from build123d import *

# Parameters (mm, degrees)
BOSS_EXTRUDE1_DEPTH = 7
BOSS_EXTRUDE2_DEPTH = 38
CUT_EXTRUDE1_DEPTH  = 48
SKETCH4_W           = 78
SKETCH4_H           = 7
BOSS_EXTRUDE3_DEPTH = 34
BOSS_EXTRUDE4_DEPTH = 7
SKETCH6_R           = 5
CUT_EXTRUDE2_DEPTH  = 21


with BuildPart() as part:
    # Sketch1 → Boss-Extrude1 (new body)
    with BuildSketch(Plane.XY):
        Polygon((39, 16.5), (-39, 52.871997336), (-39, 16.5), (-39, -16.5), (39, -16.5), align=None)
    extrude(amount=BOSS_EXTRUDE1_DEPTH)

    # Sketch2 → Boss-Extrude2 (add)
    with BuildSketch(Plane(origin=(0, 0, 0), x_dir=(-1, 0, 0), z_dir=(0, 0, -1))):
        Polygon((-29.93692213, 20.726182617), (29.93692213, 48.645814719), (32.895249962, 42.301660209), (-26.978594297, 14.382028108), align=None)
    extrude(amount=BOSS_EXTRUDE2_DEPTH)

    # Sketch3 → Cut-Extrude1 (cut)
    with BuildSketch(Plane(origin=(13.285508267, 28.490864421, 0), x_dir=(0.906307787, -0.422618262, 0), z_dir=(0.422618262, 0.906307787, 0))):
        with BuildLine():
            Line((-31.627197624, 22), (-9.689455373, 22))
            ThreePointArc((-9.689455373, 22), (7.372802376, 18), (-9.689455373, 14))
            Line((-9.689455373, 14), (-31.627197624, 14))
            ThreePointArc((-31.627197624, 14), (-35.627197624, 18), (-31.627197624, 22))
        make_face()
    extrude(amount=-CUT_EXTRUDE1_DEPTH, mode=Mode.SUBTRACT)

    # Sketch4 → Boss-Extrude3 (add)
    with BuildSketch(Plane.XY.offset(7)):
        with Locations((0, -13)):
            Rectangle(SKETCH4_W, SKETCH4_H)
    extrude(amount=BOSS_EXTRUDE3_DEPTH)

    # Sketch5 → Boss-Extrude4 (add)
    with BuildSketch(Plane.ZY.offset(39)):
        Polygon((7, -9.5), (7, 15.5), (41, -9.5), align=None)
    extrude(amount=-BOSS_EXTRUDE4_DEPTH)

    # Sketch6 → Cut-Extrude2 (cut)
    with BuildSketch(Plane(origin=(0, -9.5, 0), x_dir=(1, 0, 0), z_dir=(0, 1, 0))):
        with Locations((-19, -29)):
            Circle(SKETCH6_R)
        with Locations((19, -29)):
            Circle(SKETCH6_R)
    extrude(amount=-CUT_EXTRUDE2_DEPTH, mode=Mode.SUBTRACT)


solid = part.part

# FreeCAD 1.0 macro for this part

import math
import FreeCAD as App
import Part
import Sketcher
Q = App.Units.Quantity


def add_polygon(sketch, points):
    """Adds a closed chain of lines whose ends are joined by coincident constraints."""
    first, n = sketch.GeometryCount, len(points)
    for a, b in zip(points, points[1:] + points[:1]):
        sketch.addGeometry(Part.LineSegment(App.Vector(*a, 0), App.Vector(*b, 0)), False)
    for i in range(n):
        sketch.addConstraint(Sketcher.Constraint("Coincident", first + i, 2, first + (i + 1) % n, 1))

doc = App.newDocument("Part")
body = doc.addObject("PartDesign::Body", "Body")

# Sketch on XY plane
sketch1 = doc.addObject("Sketcher::SketchObject", "Sketch")
body.addObject(sketch1)
sketch1.AttachmentSupport = (doc.XY_Plane, [""])
sketch1.MapMode = "FlatFace"
add_polygon(sketch1, [(39, 16.5), (-39, 52.871997), (-39, -16.5), (39, -16.5)])  # lines 0-3
sketch1.addConstraint(Sketcher.Constraint("Vertical", 1))
sketch1.addConstraint(Sketcher.Constraint("Horizontal", 2))
sketch1.addConstraint(Sketcher.Constraint("Vertical", 3))
sketch1.addConstraint(Sketcher.Constraint("Symmetric", 1, 2, 3, 2, -1, 1))
sketch1.addConstraint(Sketcher.Constraint("DistanceX", 2, 1, 2, 2, Q("78 mm")))
sketch1.addConstraint(Sketcher.Constraint("DistanceY", 3, 1, 3, 2, Q("33 mm")))
sketch1.addConstraint(Sketcher.Constraint("Angle", 0, Q("155 deg")))
pad1 = doc.addObject("PartDesign::Pad", "Pad")
body.addObject(pad1)
pad1.Profile = sketch1
pad1.Length = 7

# Sketch on XY plane
sketch2 = doc.addObject("Sketcher::SketchObject", "Sketch001")
body.addObject(sketch2)
sketch2.AttachmentSupport = (doc.XY_Plane, [""])
sketch2.MapMode = "FlatFace"
add_polygon(sketch2, [(-29.936922, 48.645815), (29.936922, 20.726183), (26.978594, 14.382028), (-32.89525, 42.30166)])  # lines 0-3
sketch2.addConstraint(Sketcher.Constraint("Perpendicular", 0, 1))
sketch2.addConstraint(Sketcher.Constraint("Perpendicular", 1, 2))
sketch2.addConstraint(Sketcher.Constraint("Perpendicular", 2, 3))
sketch2.addConstraint(Sketcher.Constraint("Angle", 0, Q("-25 deg")))
sketch2.addConstraint(Sketcher.Constraint("Distance", 1, Q("7 mm")))
sketch2.addConstraint(Sketcher.Constraint("DistanceY", -1, 1, 1, 2, Q("14.382028 mm")))
sketch2.addConstraint(Sketcher.Constraint("DistanceX", 2, 2, -1, 1, Q("32.89525 mm")))
sketch2.addConstraint(Sketcher.Constraint("DistanceY", -1, 1, 2, 2, Q("42.30166 mm")))
pad2 = doc.addObject("PartDesign::Pad", "Pad001")
body.addObject(pad2)
pad2.Profile = sketch2
pad2.Length = 38
pad2.Reversed = True

# Sketch on an angled plane
sketch3 = doc.addObject("Sketcher::SketchObject", "Sketch002")
body.addObject(sketch3)
sketch3.Placement = App.Placement(App.Vector(13.285508, 28.490864, 0), App.Rotation(App.Vector(0.906307787, -0.422618262, 0), App.Vector(0, 0, -1), App.Vector(0.422618262, 0.906307787, 0), "ZXY"))
sketch3.addGeometry(Part.LineSegment(App.Vector(-9.689455, 22, 0), App.Vector(-31.627198, 22, 0)), False)
sketch3.addGeometry(Part.ArcOfCircle(Part.Circle(App.Vector(-31.627198, 18, 0), App.Vector(0, 0, 1), 4), math.radians(90), math.radians(270)), False)
sketch3.addGeometry(Part.LineSegment(App.Vector(-31.627198, 14, 0), App.Vector(-9.689455, 14, 0)), False)
sketch3.addGeometry(Part.ArcOfCircle(Part.Circle(App.Vector(-1.627198, 18, 0), App.Vector(0, 0, 1), 9), math.radians(-153.6122), math.radians(153.6122)), False)
sketch3.addConstraint(Sketcher.Constraint("Tangent", 0, 2, 1, 1))
sketch3.addConstraint(Sketcher.Constraint("Tangent", 1, 2, 2, 1))
sketch3.addConstraint(Sketcher.Constraint("Coincident", 2, 2, 3, 1))
sketch3.addConstraint(Sketcher.Constraint("Coincident", 3, 2, 0, 1))
sketch3.addConstraint(Sketcher.Constraint("Horizontal", 0))
sketch3.addConstraint(Sketcher.Constraint("Horizontal", 2))
sketch3.addConstraint(Sketcher.Constraint("Horizontal", 1, 3, 3, 3))
sketch3.addConstraint(Sketcher.Constraint("Radius", 1, Q("4 mm")))
sketch3.addConstraint(Sketcher.Constraint("Radius", 3, Q("9 mm")))
sketch3.addConstraint(Sketcher.Constraint("DistanceY", -1, 1, 1, 3, Q("18 mm")))
sketch3.addConstraint(Sketcher.Constraint("DistanceX", 1, 3, 3, 3, Q("30 mm")))
sketch3.addConstraint(Sketcher.Constraint("DistanceX", 1, 3, -1, 1, Q("31.627198 mm")))
pocket1 = doc.addObject("PartDesign::Pocket", "Pocket")
body.addObject(pocket1)
pocket1.Profile = sketch3
pocket1.Length = 48

# Sketch on XY plane
sketch4 = doc.addObject("Sketcher::SketchObject", "Sketch003")
body.addObject(sketch4)
sketch4.AttachmentSupport = (doc.XY_Plane, [""])
sketch4.MapMode = "FlatFace"
sketch4.AttachmentOffset = App.Placement(App.Vector(0, 0, 7), App.Rotation())
add_polygon(sketch4, [(-39, -9.5), (-39, -16.5), (39, -16.5), (39, -9.5)])  # lines 0-3
sketch4.addConstraint(Sketcher.Constraint("Vertical", 0))
sketch4.addConstraint(Sketcher.Constraint("Horizontal", 1))
sketch4.addConstraint(Sketcher.Constraint("Vertical", 2))
sketch4.addConstraint(Sketcher.Constraint("Horizontal", 3))
sketch4.addConstraint(Sketcher.Constraint("DistanceX", 1, 1, 1, 2, Q("78 mm")))
sketch4.addConstraint(Sketcher.Constraint("DistanceY", 0, 2, 0, 1, Q("7 mm")))
sketch4.addConstraint(Sketcher.Constraint("DistanceX", 0, 2, -1, 1, Q("39 mm")))
sketch4.addConstraint(Sketcher.Constraint("DistanceY", 0, 2, -1, 1, Q("16.5 mm")))
pad3 = doc.addObject("PartDesign::Pad", "Pad002")
body.addObject(pad3)
pad3.Profile = sketch4
pad3.Length = 34

# Sketch on YZ plane
sketch5 = doc.addObject("Sketcher::SketchObject", "Sketch004")
body.addObject(sketch5)
sketch5.AttachmentSupport = (doc.YZ_Plane, [""])
sketch5.MapMode = "FlatFace"
sketch5.AttachmentOffset = App.Placement(App.Vector(0, 0, -39), App.Rotation())
add_polygon(sketch5, [(15.5, 7), (-9.5, 7), (-9.5, 41)])  # lines 0-2
sketch5.addConstraint(Sketcher.Constraint("Horizontal", 0))
sketch5.addConstraint(Sketcher.Constraint("Vertical", 1))
sketch5.addConstraint(Sketcher.Constraint("DistanceX", 0, 2, 0, 1, Q("25 mm")))
sketch5.addConstraint(Sketcher.Constraint("DistanceY", 1, 1, 1, 2, Q("34 mm")))
sketch5.addConstraint(Sketcher.Constraint("DistanceY", -1, 1, 0, 2, Q("7 mm")))
sketch5.addConstraint(Sketcher.Constraint("DistanceX", 0, 2, -1, 1, Q("9.5 mm")))
pad4 = doc.addObject("PartDesign::Pad", "Pad003")
body.addObject(pad4)
pad4.Profile = sketch5
pad4.Length = 7

# Sketch on XZ plane
sketch6 = doc.addObject("Sketcher::SketchObject", "Sketch005")
body.addObject(sketch6)
sketch6.AttachmentSupport = (doc.XZ_Plane, [""])
sketch6.MapMode = "FlatFace"
sketch6.AttachmentOffset = App.Placement(App.Vector(0, 0, 9.5), App.Rotation())
sketch6.addGeometry(Part.Circle(App.Vector(-19, 29, 0), App.Vector(0, 0, 1), 5), False)
sketch6.addGeometry(Part.Circle(App.Vector(19, 29, 0), App.Vector(0, 0, 1), 5), False)
sketch6.addConstraint(Sketcher.Constraint("Equal", 0, 1))
sketch6.addConstraint(Sketcher.Constraint("Symmetric", 0, 3, 1, 3, -2))
sketch6.addConstraint(Sketcher.Constraint("Diameter", 0, Q("10 mm")))
sketch6.addConstraint(Sketcher.Constraint("DistanceX", 0, 3, -1, 1, Q("19 mm")))
sketch6.addConstraint(Sketcher.Constraint("DistanceY", -1, 1, 0, 3, Q("29 mm")))
pocket2 = doc.addObject("PartDesign::Pocket", "Pocket001")
body.addObject(pocket2)
pocket2.Profile = sketch6
pocket2.Length = 21
pocket2.Reversed = True

doc.recompute()
